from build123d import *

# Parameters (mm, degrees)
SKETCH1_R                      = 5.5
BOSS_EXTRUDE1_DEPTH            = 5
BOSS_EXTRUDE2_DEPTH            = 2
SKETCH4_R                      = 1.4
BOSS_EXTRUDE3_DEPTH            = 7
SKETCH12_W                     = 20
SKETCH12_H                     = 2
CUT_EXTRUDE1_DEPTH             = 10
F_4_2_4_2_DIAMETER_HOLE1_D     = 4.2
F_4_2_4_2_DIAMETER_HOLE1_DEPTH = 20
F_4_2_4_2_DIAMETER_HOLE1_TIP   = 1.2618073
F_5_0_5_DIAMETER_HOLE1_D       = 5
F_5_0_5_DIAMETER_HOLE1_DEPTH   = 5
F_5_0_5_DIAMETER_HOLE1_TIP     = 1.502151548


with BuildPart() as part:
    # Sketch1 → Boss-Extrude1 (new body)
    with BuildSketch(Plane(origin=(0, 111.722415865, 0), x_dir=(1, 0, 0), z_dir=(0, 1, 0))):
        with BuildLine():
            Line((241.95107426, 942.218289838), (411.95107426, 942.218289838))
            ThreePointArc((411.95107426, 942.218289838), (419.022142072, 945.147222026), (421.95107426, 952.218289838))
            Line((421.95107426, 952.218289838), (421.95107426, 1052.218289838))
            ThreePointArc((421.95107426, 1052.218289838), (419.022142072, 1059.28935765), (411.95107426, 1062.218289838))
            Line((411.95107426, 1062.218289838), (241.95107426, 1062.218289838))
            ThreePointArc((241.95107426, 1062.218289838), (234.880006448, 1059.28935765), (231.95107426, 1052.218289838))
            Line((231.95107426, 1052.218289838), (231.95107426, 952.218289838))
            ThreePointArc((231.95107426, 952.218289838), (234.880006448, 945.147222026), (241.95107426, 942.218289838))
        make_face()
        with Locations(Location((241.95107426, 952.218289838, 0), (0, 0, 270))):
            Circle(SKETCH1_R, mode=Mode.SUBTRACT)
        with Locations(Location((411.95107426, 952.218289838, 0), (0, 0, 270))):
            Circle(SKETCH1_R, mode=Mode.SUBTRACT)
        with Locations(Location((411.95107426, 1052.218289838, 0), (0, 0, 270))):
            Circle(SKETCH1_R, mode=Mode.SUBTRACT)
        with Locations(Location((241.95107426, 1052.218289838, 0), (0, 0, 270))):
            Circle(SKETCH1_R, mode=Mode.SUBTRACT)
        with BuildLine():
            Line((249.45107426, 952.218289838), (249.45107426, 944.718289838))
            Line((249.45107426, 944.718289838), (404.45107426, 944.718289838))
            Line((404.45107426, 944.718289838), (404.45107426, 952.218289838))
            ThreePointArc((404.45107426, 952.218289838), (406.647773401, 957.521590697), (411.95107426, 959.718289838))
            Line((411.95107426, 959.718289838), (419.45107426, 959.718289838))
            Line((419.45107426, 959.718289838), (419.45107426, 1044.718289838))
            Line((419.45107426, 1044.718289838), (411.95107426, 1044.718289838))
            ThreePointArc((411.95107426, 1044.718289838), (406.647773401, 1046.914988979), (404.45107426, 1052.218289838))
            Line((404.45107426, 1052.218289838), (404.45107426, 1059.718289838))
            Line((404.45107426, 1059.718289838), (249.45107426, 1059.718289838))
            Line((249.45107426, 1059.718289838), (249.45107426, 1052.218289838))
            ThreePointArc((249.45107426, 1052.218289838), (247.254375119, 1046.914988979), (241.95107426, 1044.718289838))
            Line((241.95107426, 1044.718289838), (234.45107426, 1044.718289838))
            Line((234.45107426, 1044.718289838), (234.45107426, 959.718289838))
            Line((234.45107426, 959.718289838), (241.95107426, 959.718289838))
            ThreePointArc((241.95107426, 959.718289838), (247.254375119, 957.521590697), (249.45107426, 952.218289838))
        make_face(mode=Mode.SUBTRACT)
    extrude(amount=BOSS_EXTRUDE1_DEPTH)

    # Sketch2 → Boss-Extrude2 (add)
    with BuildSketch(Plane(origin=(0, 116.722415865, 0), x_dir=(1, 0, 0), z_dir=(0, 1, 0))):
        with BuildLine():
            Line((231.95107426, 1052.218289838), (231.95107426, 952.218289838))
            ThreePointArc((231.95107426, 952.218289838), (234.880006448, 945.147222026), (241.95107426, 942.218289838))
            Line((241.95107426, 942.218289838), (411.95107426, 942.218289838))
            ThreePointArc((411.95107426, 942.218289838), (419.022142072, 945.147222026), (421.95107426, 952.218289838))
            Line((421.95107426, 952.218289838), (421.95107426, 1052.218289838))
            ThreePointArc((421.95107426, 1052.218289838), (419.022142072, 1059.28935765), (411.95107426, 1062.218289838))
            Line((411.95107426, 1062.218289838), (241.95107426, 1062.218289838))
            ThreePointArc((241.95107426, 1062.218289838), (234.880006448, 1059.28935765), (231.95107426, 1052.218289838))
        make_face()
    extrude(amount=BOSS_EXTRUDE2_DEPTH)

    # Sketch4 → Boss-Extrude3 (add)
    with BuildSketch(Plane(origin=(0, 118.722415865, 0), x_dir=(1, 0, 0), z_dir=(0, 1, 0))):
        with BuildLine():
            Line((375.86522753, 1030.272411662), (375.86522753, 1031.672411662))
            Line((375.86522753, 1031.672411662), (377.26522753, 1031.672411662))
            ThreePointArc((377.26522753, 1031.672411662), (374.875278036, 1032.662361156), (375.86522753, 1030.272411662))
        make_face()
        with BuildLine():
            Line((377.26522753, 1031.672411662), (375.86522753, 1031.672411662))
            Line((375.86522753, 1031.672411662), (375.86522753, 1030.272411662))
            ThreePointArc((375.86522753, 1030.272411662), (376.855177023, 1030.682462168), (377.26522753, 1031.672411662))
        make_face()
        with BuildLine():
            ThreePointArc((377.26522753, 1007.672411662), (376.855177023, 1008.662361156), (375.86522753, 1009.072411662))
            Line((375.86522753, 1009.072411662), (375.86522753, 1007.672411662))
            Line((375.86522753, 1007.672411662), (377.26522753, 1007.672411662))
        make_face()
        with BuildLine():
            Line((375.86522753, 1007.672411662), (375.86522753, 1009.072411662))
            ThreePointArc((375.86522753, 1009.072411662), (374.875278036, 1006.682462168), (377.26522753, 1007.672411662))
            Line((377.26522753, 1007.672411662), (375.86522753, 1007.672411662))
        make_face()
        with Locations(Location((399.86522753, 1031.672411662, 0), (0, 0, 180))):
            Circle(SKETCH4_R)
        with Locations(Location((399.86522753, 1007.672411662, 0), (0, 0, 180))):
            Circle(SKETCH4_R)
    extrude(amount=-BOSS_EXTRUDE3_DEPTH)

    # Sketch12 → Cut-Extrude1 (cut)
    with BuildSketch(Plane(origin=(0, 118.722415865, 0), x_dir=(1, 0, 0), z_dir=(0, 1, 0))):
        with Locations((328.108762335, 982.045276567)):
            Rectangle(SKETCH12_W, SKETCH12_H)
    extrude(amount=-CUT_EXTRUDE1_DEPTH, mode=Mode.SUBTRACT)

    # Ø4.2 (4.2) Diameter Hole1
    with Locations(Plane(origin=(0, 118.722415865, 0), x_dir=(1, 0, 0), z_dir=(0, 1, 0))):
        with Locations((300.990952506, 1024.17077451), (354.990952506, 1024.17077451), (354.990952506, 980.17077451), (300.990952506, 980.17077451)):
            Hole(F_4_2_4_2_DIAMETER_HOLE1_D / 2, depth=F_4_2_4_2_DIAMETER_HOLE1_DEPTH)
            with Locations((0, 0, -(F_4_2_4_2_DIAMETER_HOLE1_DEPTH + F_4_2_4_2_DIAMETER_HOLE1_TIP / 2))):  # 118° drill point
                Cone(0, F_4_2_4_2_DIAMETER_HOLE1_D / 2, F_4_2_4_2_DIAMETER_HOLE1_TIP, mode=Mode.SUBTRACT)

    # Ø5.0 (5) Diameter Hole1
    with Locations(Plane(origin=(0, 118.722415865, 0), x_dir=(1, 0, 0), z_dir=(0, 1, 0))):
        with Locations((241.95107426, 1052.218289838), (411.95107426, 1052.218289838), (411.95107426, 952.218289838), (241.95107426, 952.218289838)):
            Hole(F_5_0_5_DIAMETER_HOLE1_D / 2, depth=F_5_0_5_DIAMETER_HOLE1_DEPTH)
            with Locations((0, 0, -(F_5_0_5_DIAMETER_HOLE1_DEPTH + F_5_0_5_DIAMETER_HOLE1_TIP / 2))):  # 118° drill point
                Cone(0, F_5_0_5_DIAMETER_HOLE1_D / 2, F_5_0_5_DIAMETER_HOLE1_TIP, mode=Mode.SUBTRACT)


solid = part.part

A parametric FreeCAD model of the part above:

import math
import FreeCAD as App
import Part
import Sketcher

V = App.Vector
Q = App.Units.Quantity

doc = App.newDocument("Part")
params = doc.addObject("Spreadsheet::Sheet", "Params")
for row, (alias, value) in enumerate([
    ("sketch1_diameter", "11 mm"),
    ("sketch1_radius", "10 mm"),
    ("sketch1_radius2", "7.5 mm"),
    ("sketch1_width", "170 mm"),
    ("sketch1_height", "100 mm"),
    ("pad1_length", "5 mm"),
    ("sketch2_radius", "10 mm"),
    ("sketch2_width", "170 mm"),
    ("sketch2_height", "100 mm"),
    ("pad2_length", "2 mm"),
    ("sketch3_diameter", "2.8 mm"),
    ("pad3_length", "7 mm"),
    ("sketch4_width", "20 mm"),
    ("sketch4_height", "2 mm"),
    ("pocket1_length", "10 mm"),
    ("sketch5_diameter", "4.2 mm"),
    ("hole_diameter", "4.2 mm"),
    ("hole_depth", "20 mm"),
    ("sketch6_diameter", "5 mm"),
    ("hole2_diameter", "5 mm"),
    ("hole2_depth", "5 mm"),
], start=1):
    params.set(f"A{row}", alias)
    params.set(f"B{row}", "=" + value)
    params.setAlias(f"B{row}", alias)

body = doc.addObject("PartDesign::Body", "Body")

sketch1 = body.newObject("Sketcher::SketchObject", "Sketch")
sketch1.AttachmentSupport = (doc.getObject("XZ_Plane"), [""])
sketch1.MapMode = "FlatFace"
sketch1.AttachmentOffset = App.Placement(V(0, 0, -111.722416), App.Rotation())
sketch1.addGeometry([
    Part.LineSegment(V(242, -942, 0), V(412, -942, 0)),
    Part.ArcOfCircle(Part.Circle(V(412, -952, 0), V(0, 0, 1), 10), math.radians(0), math.radians(90)),
    Part.LineSegment(V(422, -952, 0), V(422, -1052, 0)),
    Part.ArcOfCircle(Part.Circle(V(412, -1052, 0), V(0, 0, 1), 10), math.radians(-90), math.radians(0)),
    Part.LineSegment(V(412, -1062, 0), V(242, -1062, 0)),
    Part.ArcOfCircle(Part.Circle(V(242, -1052, 0), V(0, 0, 1), 10), math.radians(180), math.radians(270)),
    Part.LineSegment(V(232, -1052, 0), V(232, -952, 0)),
    Part.ArcOfCircle(Part.Circle(V(242, -952, 0), V(0, 0, 1), 10), math.radians(90), math.radians(180)),
    Part.Circle(V(242, -952, 0), V(0, 0, 1), 6),
    Part.Circle(V(412, -952, 0), V(0, 0, 1), 6),
    Part.Circle(V(242, -1052, 0), V(0, 0, 1), 6),
    Part.LineSegment(V(249, -945, 0), V(249, -952, 0)),
    Part.ArcOfCircle(Part.Circle(V(242, -952, 0), V(0, 0, 1), 8), math.radians(-90), math.radians(0)),
    Part.LineSegment(V(242, -960, 0), V(234, -960, 0)),
    Part.LineSegment(V(234, -960, 0), V(234, -1045, 0)),
    Part.LineSegment(V(234, -1045, 0), V(242, -1045, 0)),
    Part.ArcOfCircle(Part.Circle(V(242, -1052, 0), V(0, 0, 1), 8), math.radians(0), math.radians(90)),
    Part.LineSegment(V(249, -1052, 0), V(249, -1060, 0)),
    Part.LineSegment(V(249, -1060, 0), V(404, -1060, 0)),
    Part.LineSegment(V(404, -1060, 0), V(404, -1052, 0)),
    Part.ArcOfCircle(Part.Circle(V(412, -1052, 0), V(0, 0, 1), 8), math.radians(90), math.radians(180)),
    Part.LineSegment(V(412, -1045, 0), V(419, -1045, 0)),
    Part.LineSegment(V(419, -1045, 0), V(419, -960, 0)),
    Part.LineSegment(V(419, -960, 0), V(412, -960, 0)),
    Part.ArcOfCircle(Part.Circle(V(412, -952, 0), V(0, 0, 1), 8), math.radians(180), math.radians(270)),
    Part.LineSegment(V(404, -952, 0), V(404, -945, 0)),
    Part.LineSegment(V(404, -945, 0), V(249, -945, 0)),
    Part.Circle(V(412, -1052, 0), V(0, 0, 1), 6),
], False)
sketch1.addConstraint([
    Sketcher.Constraint("Tangent", 0, 2, 1, 2),
    Sketcher.Constraint("Tangent", 1, 1, 2, 1),
    Sketcher.Constraint("Tangent", 2, 2, 3, 2),
    Sketcher.Constraint("Tangent", 3, 1, 4, 1),
    Sketcher.Constraint("Tangent", 4, 2, 5, 2),
    Sketcher.Constraint("Tangent", 5, 1, 6, 1),
    Sketcher.Constraint("Tangent", 6, 2, 7, 2),
    Sketcher.Constraint("Tangent", 7, 1, 0, 1),
    Sketcher.Constraint("Tangent", 11, 2, 12, 2),
    Sketcher.Constraint("Tangent", 12, 1, 13, 1),
    Sketcher.Constraint("Coincident", 13, 2, 14, 1),
    Sketcher.Constraint("Coincident", 14, 2, 15, 1),
    Sketcher.Constraint("Tangent", 15, 2, 16, 2),
    Sketcher.Constraint("Tangent", 16, 1, 17, 1),
    Sketcher.Constraint("Coincident", 17, 2, 18, 1),
    Sketcher.Constraint("Coincident", 18, 2, 19, 1),
    Sketcher.Constraint("Tangent", 19, 2, 20, 2),
    Sketcher.Constraint("Tangent", 20, 1, 21, 1),
    Sketcher.Constraint("Coincident", 21, 2, 22, 1),
    Sketcher.Constraint("Coincident", 22, 2, 23, 1),
    Sketcher.Constraint("Tangent", 23, 2, 24, 2),
    Sketcher.Constraint("Tangent", 24, 1, 25, 1),
    Sketcher.Constraint("Coincident", 25, 2, 26, 1),
    Sketcher.Constraint("Coincident", 26, 2, 11, 1),
    Sketcher.Constraint("Horizontal", 0),
    Sketcher.Constraint("Vertical", 2),
    Sketcher.Constraint("Horizontal", 4),
    Sketcher.Constraint("Vertical", 6),
    Sketcher.Constraint("Vertical", 11),
    Sketcher.Constraint("Horizontal", 13),
    Sketcher.Constraint("Vertical", 14),
    Sketcher.Constraint("Horizontal", 15),
    Sketcher.Constraint("Vertical", 17),
    Sketcher.Constraint("Horizontal", 18),
    Sketcher.Constraint("Vertical", 19),
    Sketcher.Constraint("Horizontal", 21),
    Sketcher.Constraint("Vertical", 22),
    Sketcher.Constraint("Horizontal", 23),
    Sketcher.Constraint("Vertical", 25),
    Sketcher.Constraint("Horizontal", 26),
    Sketcher.Constraint("Coincident", 8, 3, 7, 3),
    Sketcher.Constraint("Coincident", 9, 3, 1, 3),
    Sketcher.Constraint("Coincident", 10, 3, 5, 3),
    Sketcher.Constraint("Coincident", 12, 3, 7, 3),
    Sketcher.Constraint("Coincident", 16, 3, 5, 3),
    Sketcher.Constraint("Coincident", 20, 3, 3, 3),
    Sketcher.Constraint("Coincident", 24, 3, 1, 3),
    Sketcher.Constraint("Coincident", 27, 3, 3, 3),
    Sketcher.Constraint("Equal", 1, 3),
    Sketcher.Constraint("Equal", 3, 5),
    Sketcher.Constraint("Equal", 5, 7),
    Sketcher.Constraint("Equal", 8, 9),
    Sketcher.Constraint("Equal", 9, 10),
    Sketcher.Constraint("Equal", 12, 16),
    Sketcher.Constraint("Equal", 16, 20),
    Sketcher.Constraint("Equal", 20, 24),
    Sketcher.Constraint("Equal", 10, 27),
    Sketcher.Constraint("Equal", 15, 21),
    Sketcher.Constraint("Equal", 23, 11),
    Sketcher.Constraint("Equal", 11, 17),
    Sketcher.Constraint("Diameter", 8, Q("11 mm")),
    Sketcher.Constraint("Radius", 1, Q("10 mm")),
    Sketcher.Constraint("Radius", 12, Q("7.5 mm")),
    Sketcher.Constraint("DistanceX", 0, 1, 0, 2, Q("170 mm")),
    Sketcher.Constraint("DistanceY", 2, 2, 2, 1, Q("100 mm")),
    Sketcher.Constraint("DistanceX", 13, 2, 13, 1, Q("7.5 mm")),
    Sketcher.Constraint("DistanceY", 1, 3, -1, 1, Q("952.21829 mm")),
    Sketcher.Constraint("DistanceX", -1, 1, 1, 3, Q("411.951074 mm")),
])
sketch1.setExpression("Constraints[60]", "Params.sketch1_diameter")
sketch1.setExpression("Constraints[61]", "Params.sketch1_radius")
sketch1.setExpression("Constraints[62]", "Params.sketch1_radius2")
sketch1.setExpression("Constraints[63]", "Params.sketch1_width")
sketch1.setExpression("Constraints[64]", "Params.sketch1_height")
pad1 = body.newObject("PartDesign::Pad", "Pad")
pad1.Profile = sketch1
pad1.setExpression("Length", "Params.pad1_length")
pad1.Reversed = True

sketch2 = body.newObject("Sketcher::SketchObject", "Sketch001")
sketch2.AttachmentSupport = (doc.getObject("XZ_Plane"), [""])
sketch2.MapMode = "FlatFace"
sketch2.AttachmentOffset = App.Placement(V(0, 0, -116.722416), App.Rotation())
sketch2.addGeometry([
    Part.LineSegment(V(232, -1052, 0), V(232, -952, 0)),
    Part.ArcOfCircle(Part.Circle(V(242, -952, 0), V(0, 0, 1), 10), math.radians(90), math.radians(180)),
    Part.LineSegment(V(242, -942, 0), V(412, -942, 0)),
    Part.ArcOfCircle(Part.Circle(V(412, -952, 0), V(0, 0, 1), 10), math.radians(0), math.radians(90)),
    Part.LineSegment(V(422, -952, 0), V(422, -1052, 0)),
    Part.ArcOfCircle(Part.Circle(V(412, -1052, 0), V(0, 0, 1), 10), math.radians(-90), math.radians(0)),
    Part.LineSegment(V(412, -1062, 0), V(242, -1062, 0)),
    Part.ArcOfCircle(Part.Circle(V(242, -1052, 0), V(0, 0, 1), 10), math.radians(180), math.radians(270)),
], False)
sketch2.addConstraint([
    Sketcher.Constraint("Tangent", 0, 2, 1, 2),
    Sketcher.Constraint("Tangent", 1, 1, 2, 1),
    Sketcher.Constraint("Tangent", 2, 2, 3, 2),
    Sketcher.Constraint("Tangent", 3, 1, 4, 1),
    Sketcher.Constraint("Tangent", 4, 2, 5, 2),
    Sketcher.Constraint("Tangent", 5, 1, 6, 1),
    Sketcher.Constraint("Tangent", 6, 2, 7, 2),
    Sketcher.Constraint("Tangent", 7, 1, 0, 1),
    Sketcher.Constraint("Vertical", 0),
    Sketcher.Constraint("Horizontal", 2),
    Sketcher.Constraint("Vertical", 4),
    Sketcher.Constraint("Horizontal", 6),
    Sketcher.Constraint("Equal", 1, 3),
    Sketcher.Constraint("Equal", 3, 5),
    Sketcher.Constraint("Equal", 5, 7),
    Sketcher.Constraint("Radius", 1, Q("10 mm")),
    Sketcher.Constraint("DistanceX", 2, 1, 2, 2, Q("170 mm")),
    Sketcher.Constraint("DistanceY", 0, 1, 0, 2, Q("100 mm")),
    Sketcher.Constraint("DistanceY", 1, 3, -1, 1, Q("952.21829 mm")),
    Sketcher.Constraint("DistanceX", -1, 1, 1, 3, Q("241.951074 mm")),
])
sketch2.setExpression("Constraints[15]", "Params.sketch2_radius")
sketch2.setExpression("Constraints[16]", "Params.sketch2_width")
sketch2.setExpression("Constraints[17]", "Params.sketch2_height")
pad2 = body.newObject("PartDesign::Pad", "Pad001")
pad2.Profile = sketch2
pad2.setExpression("Length", "Params.pad2_length")
pad2.Reversed = True

sketch3 = body.newObject("Sketcher::SketchObject", "Sketch002")
sketch3.AttachmentSupport = (doc.getObject("XZ_Plane"), [""])
sketch3.MapMode = "FlatFace"
sketch3.AttachmentOffset = App.Placement(V(0, 0, -118.722416), App.Rotation())
sketch3.addGeometry([
    Part.ArcOfCircle(Part.Circle(V(375.9, -1031.7, 0), V(0, 0, 1), 1.4), math.radians(90), math.radians(360)),
    Part.ArcOfCircle(Part.Circle(V(375.9, -1031.7, 0), V(0, 0, 1), 1.4), math.radians(0), math.radians(90)),
    Part.ArcOfCircle(Part.Circle(V(375.9, -1007.7, 0), V(0, 0, 1), 1.4), math.radians(-90), math.radians(0)),
    Part.ArcOfCircle(Part.Circle(V(375.9, -1007.7, 0), V(0, 0, 1), 1.4), math.radians(0), math.radians(270)),
    Part.Circle(V(399.9, -1031.7, 0), V(0, 0, 1), 1.4),
    Part.Circle(V(399.9, -1007.7, 0), V(0, 0, 1), 1.4),
], False)
sketch3.addConstraint([
    Sketcher.Constraint("Tangent", 0, 1, 1, 2),
    Sketcher.Constraint("Coincident", 1, 1, 0, 2),
    Sketcher.Constraint("Tangent", 2, 1, 3, 2),
    Sketcher.Constraint("Coincident", 3, 1, 2, 2),
    Sketcher.Constraint("Equal", 1, 2),
    Sketcher.Constraint("Equal", 3, 4),
    Sketcher.Constraint("Equal", 4, 5),
    Sketcher.Constraint("Horizontal", 1, 3, 4, 3),
    Sketcher.Constraint("Horizontal", 3, 3, 5, 3),
    Sketcher.Constraint("Horizontal", 4, 3, 1, 1),
    Sketcher.Constraint("Horizontal", 5, 3, 3, 1),
    Sketcher.Constraint("Vertical", 1, 3, 2, 3),
    Sketcher.Constraint("Vertical", 4, 3, 5, 3),
    Sketcher.Constraint("Vertical", 3, 3, 0, 1),
    Sketcher.Constraint("Vertical", 0, 1, 2, 1),
    Sketcher.Constraint("Diameter", 4, Q("2.8 mm")),
    Sketcher.Constraint("DistanceY", 0, 3, 2, 3, Q("24 mm")),
    Sketcher.Constraint("DistanceX", 0, 3, 4, 3, Q("24 mm")),
    Sketcher.Constraint("DistanceY", 0, 3, -1, 1, Q("1031.672412 mm")),
    Sketcher.Constraint("DistanceX", -1, 1, 0, 3, Q("375.865228 mm")),
])
sketch3.setExpression("Constraints[15]", "Params.sketch3_diameter")
pad3 = body.newObject("PartDesign::Pad", "Pad002")
pad3.Profile = sketch3
pad3.setExpression("Length", "Params.pad3_length")

sketch4 = body.newObject("Sketcher::SketchObject", "Sketch003")
sketch4.AttachmentSupport = (doc.getObject("XZ_Plane"), [""])
sketch4.MapMode = "FlatFace"
sketch4.AttachmentOffset = App.Placement(V(0, 0, -118.722416), App.Rotation())
sketch4.addGeometry([
    Part.LineSegment(V(318.1, -983, 0), V(318.1, -981, 0)),
    Part.LineSegment(V(318.1, -981, 0), V(338.1, -981, 0)),
    Part.LineSegment(V(338.1, -981, 0), V(338.1, -983, 0)),
    Part.LineSegment(V(338.1, -983, 0), V(318.1, -983, 0)),
], False)
sketch4.addConstraint([
    Sketcher.Constraint("Coincident", 0, 2, 1, 1),
    Sketcher.Constraint("Coincident", 1, 2, 2, 1),
    Sketcher.Constraint("Coincident", 2, 2, 3, 1),
    Sketcher.Constraint("Coincident", 3, 2, 0, 1),
    Sketcher.Constraint("Vertical", 0),
    Sketcher.Constraint("Horizontal", 1),
    Sketcher.Constraint("Vertical", 2),
    Sketcher.Constraint("Horizontal", 3),
    Sketcher.Constraint("DistanceX", 1, 1, 1, 2, Q("20 mm")),
    Sketcher.Constraint("DistanceY", 0, 1, 0, 2, Q("2 mm")),
    Sketcher.Constraint("DistanceX", -1, 1, 0, 2, Q("318.108762 mm")),
    Sketcher.Constraint("DistanceY", 0, 2, -1, 1, Q("981.045277 mm")),
])
sketch4.setExpression("Constraints[8]", "Params.sketch4_width")
sketch4.setExpression("Constraints[9]", "Params.sketch4_height")
pocket1 = body.newObject("PartDesign::Pocket", "Pocket")
pocket1.Profile = sketch4
pocket1.setExpression("Length", "Params.pocket1_length")
pocket1.Reversed = True

sketch5 = body.newObject("Sketcher::SketchObject", "Sketch004")
sketch5.AttachmentSupport = (doc.getObject("XZ_Plane"), [""])
sketch5.MapMode = "FlatFace"
sketch5.AttachmentOffset = App.Placement(V(0, 0, -118.722416), App.Rotation())
sketch5.addGeometry([
    Part.Circle(V(301, -1024.2, 0), V(0, 0, 1), 2.1),
    Part.Circle(V(355, -1024.2, 0), V(0, 0, 1), 2.1),
    Part.Circle(V(355, -980.2, 0), V(0, 0, 1), 2.1),
    Part.Circle(V(301, -980.2, 0), V(0, 0, 1), 2.1),
], False)
sketch5.addConstraint([
    Sketcher.Constraint("Equal", 0, 1),
    Sketcher.Constraint("Equal", 1, 2),
    Sketcher.Constraint("Equal", 2, 3),
    Sketcher.Constraint("Horizontal", 0, 3, 1, 3),
    Sketcher.Constraint("Horizontal", 2, 3, 3, 3),
    Sketcher.Constraint("Vertical", 1, 3, 2, 3),
    Sketcher.Constraint("Vertical", 0, 3, 3, 3),
    Sketcher.Constraint("Diameter", 0, Q("4.2 mm")),
    Sketcher.Constraint("DistanceX", 0, 3, 1, 3, Q("54 mm")),
    Sketcher.Constraint("DistanceY", 1, 3, 2, 3, Q("44 mm")),
    Sketcher.Constraint("DistanceX", -1, 1, 0, 3, Q("300.990953 mm")),
    Sketcher.Constraint("DistanceY", 0, 3, -1, 1, Q("1024.170775 mm")),
])
sketch5.setExpression("Constraints[7]", "Params.sketch5_diameter")
doc.recompute()
hole = body.newObject("PartDesign::Hole", "Hole")
hole.Profile = sketch5
hole.ThreadType = "None"
hole.setExpression("Diameter", "Params.hole_diameter")
hole.DepthType = "Dimension"
hole.setExpression("Depth", "Params.hole_depth")
hole.DrillPoint = "Angled"
hole.DrillPointAngle = 118
hole.Reversed = True

sketch6 = body.newObject("Sketcher::SketchObject", "Sketch005")
sketch6.AttachmentSupport = (doc.getObject("XZ_Plane"), [""])
sketch6.MapMode = "FlatFace"
sketch6.AttachmentOffset = App.Placement(V(0, 0, -118.722416), App.Rotation())
sketch6.addGeometry([
    Part.Circle(V(242, -1052.2, 0), V(0, 0, 1), 2.5),
    Part.Circle(V(412, -1052.2, 0), V(0, 0, 1), 2.5),
    Part.Circle(V(412, -952.2, 0), V(0, 0, 1), 2.5),
    Part.Circle(V(242, -952.2, 0), V(0, 0, 1), 2.5),
], False)
sketch6.addConstraint([
    Sketcher.Constraint("Equal", 0, 1),
    Sketcher.Constraint("Equal", 1, 2),
    Sketcher.Constraint("Equal", 2, 3),
    Sketcher.Constraint("Horizontal", 0, 3, 1, 3),
    Sketcher.Constraint("Horizontal", 2, 3, 3, 3),
    Sketcher.Constraint("Vertical", 1, 3, 2, 3),
    Sketcher.Constraint("Vertical", 0, 3, 3, 3),
    Sketcher.Constraint("Diameter", 0, Q("5 mm")),
    Sketcher.Constraint("DistanceX", 0, 3, 1, 3, Q("170 mm")),
    Sketcher.Constraint("DistanceY", 1, 3, 2, 3, Q("100 mm")),
    Sketcher.Constraint("DistanceY", 0, 3, -1, 1, Q("1052.21829 mm")),
    Sketcher.Constraint("DistanceX", -1, 1, 0, 3, Q("241.951074 mm")),
])
sketch6.setExpression("Constraints[7]", "Params.sketch6_diameter")
doc.recompute()
hole2 = body.newObject("PartDesign::Hole", "Hole001")
hole2.Profile = sketch6
hole2.ThreadType = "None"
hole2.setExpression("Diameter", "Params.hole2_diameter")
hole2.DepthType = "Dimension"
hole2.setExpression("Depth", "Params.hole2_depth")
hole2.DrillPoint = "Angled"
hole2.DrillPointAngle = 118
hole2.Reversed = True

doc.recompute()
